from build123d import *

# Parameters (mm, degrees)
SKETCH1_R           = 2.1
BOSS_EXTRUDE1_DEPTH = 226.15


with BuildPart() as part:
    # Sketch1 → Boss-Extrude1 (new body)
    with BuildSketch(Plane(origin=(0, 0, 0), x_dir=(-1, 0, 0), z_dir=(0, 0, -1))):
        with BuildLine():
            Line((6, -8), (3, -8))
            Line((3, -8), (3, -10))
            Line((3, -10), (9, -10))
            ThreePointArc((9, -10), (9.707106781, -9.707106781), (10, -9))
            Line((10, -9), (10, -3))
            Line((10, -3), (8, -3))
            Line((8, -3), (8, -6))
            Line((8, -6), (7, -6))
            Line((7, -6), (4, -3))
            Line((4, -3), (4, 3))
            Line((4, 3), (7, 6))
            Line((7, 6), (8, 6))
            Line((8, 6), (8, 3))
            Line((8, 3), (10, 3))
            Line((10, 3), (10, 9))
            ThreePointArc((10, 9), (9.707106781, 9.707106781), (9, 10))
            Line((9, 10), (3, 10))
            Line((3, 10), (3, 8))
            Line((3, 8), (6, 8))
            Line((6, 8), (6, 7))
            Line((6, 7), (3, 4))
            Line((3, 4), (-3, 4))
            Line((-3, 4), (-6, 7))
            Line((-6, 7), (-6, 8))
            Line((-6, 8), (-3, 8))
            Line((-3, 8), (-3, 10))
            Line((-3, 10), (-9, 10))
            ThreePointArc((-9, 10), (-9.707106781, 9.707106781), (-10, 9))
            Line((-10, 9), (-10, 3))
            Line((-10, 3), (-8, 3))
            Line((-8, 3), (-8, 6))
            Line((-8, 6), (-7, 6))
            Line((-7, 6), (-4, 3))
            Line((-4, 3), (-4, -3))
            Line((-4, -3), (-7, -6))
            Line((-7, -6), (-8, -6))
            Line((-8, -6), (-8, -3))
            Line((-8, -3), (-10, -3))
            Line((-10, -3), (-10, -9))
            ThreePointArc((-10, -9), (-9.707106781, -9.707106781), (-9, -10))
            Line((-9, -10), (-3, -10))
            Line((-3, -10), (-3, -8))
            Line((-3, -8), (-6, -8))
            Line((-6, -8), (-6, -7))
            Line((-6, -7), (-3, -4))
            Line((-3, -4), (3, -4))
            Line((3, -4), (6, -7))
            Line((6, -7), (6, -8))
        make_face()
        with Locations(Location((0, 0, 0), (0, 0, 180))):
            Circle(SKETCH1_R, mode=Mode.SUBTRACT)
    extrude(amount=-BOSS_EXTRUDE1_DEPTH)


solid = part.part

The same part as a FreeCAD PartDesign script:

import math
import FreeCAD as App
import Part
import Sketcher

doc = App.newDocument("Part")
body = doc.addObject("PartDesign::Body", "Body")

sketch1 = body.newObject("Sketcher::SketchObject", "Sketch")
sketch1.AttachmentSupport = (doc.getObject("XY_Plane"), [""])
sketch1.MapMode = "FlatFace"
sketch1.addGeometry([
    Part.LineSegment(App.Vector(-6, -8, 0), App.Vector(-3, -8, 0)),
    Part.LineSegment(App.Vector(-3, -8, 0), App.Vector(-3, -10, 0)),
    Part.LineSegment(App.Vector(-3, -10, 0), App.Vector(-9, -10, 0)),
    Part.ArcOfCircle(Part.Circle(App.Vector(-9, -9, 0), App.Vector(0, 0, 1), 1), math.radians(-180), math.radians(-90)),
    Part.LineSegment(App.Vector(-10, -9, 0), App.Vector(-10, -3, 0)),
    Part.LineSegment(App.Vector(-10, -3, 0), App.Vector(-8, -3, 0)),
    Part.LineSegment(App.Vector(-8, -3, 0), App.Vector(-8, -6, 0)),
    Part.LineSegment(App.Vector(-8, -6, 0), App.Vector(-7, -6, 0)),
    Part.LineSegment(App.Vector(-7, -6, 0), App.Vector(-4, -3, 0)),
    Part.LineSegment(App.Vector(-4, -3, 0), App.Vector(-4, 3, 0)),
    Part.LineSegment(App.Vector(-4, 3, 0), App.Vector(-7, 6, 0)),
    Part.LineSegment(App.Vector(-7, 6, 0), App.Vector(-8, 6, 0)),
    Part.LineSegment(App.Vector(-8, 6, 0), App.Vector(-8, 3, 0)),
    Part.LineSegment(App.Vector(-8, 3, 0), App.Vector(-10, 3, 0)),
    Part.LineSegment(App.Vector(-10, 3, 0), App.Vector(-10, 9, 0)),
    Part.ArcOfCircle(Part.Circle(App.Vector(-9, 9, 0), App.Vector(0, 0, 1), 1), math.radians(90), math.radians(180)),
    Part.LineSegment(App.Vector(-9, 10, 0), App.Vector(-3, 10, 0)),
    Part.LineSegment(App.Vector(-3, 10, 0), App.Vector(-3, 8, 0)),
    Part.LineSegment(App.Vector(-3, 8, 0), App.Vector(-6, 8, 0)),
    Part.LineSegment(App.Vector(-6, 8, 0), App.Vector(-6, 7, 0)),
    Part.LineSegment(App.Vector(-6, 7, 0), App.Vector(-3, 4, 0)),
    Part.LineSegment(App.Vector(-3, 4, 0), App.Vector(3, 4, 0)),
    Part.LineSegment(App.Vector(3, 4, 0), App.Vector(6, 7, 0)),
    Part.LineSegment(App.Vector(6, 7, 0), App.Vector(6, 8, 0)),
    Part.LineSegment(App.Vector(6, 8, 0), App.Vector(3, 8, 0)),
    Part.LineSegment(App.Vector(3, 8, 0), App.Vector(3, 10, 0)),
    Part.LineSegment(App.Vector(3, 10, 0), App.Vector(9, 10, 0)),
    Part.ArcOfCircle(Part.Circle(App.Vector(9, 9, 0), App.Vector(0, 0, 1), 1), math.radians(0), math.radians(90)),
    Part.LineSegment(App.Vector(10, 9, 0), App.Vector(10, 3, 0)),
    Part.LineSegment(App.Vector(10, 3, 0), App.Vector(8, 3, 0)),
    Part.LineSegment(App.Vector(8, 3, 0), App.Vector(8, 6, 0)),
    Part.LineSegment(App.Vector(8, 6, 0), App.Vector(7, 6, 0)),
    Part.LineSegment(App.Vector(7, 6, 0), App.Vector(4, 3, 0)),
    Part.LineSegment(App.Vector(4, 3, 0), App.Vector(4, -3, 0)),
    Part.LineSegment(App.Vector(4, -3, 0), App.Vector(7, -6, 0)),
    Part.LineSegment(App.Vector(7, -6, 0), App.Vector(8, -6, 0)),
    Part.LineSegment(App.Vector(8, -6, 0), App.Vector(8, -3, 0)),
    Part.LineSegment(App.Vector(8, -3, 0), App.Vector(10, -3, 0)),
    Part.LineSegment(App.Vector(10, -3, 0), App.Vector(10, -9, 0)),
    Part.ArcOfCircle(Part.Circle(App.Vector(9, -9, 0), App.Vector(0, 0, 1), 1), math.radians(-90), math.radians(0)),
    Part.LineSegment(App.Vector(9, -10, 0), App.Vector(3, -10, 0)),
    Part.LineSegment(App.Vector(3, -10, 0), App.Vector(3, -8, 0)),
    Part.LineSegment(App.Vector(3, -8, 0), App.Vector(6, -8, 0)),
    Part.LineSegment(App.Vector(6, -8, 0), App.Vector(6, -7, 0)),
    Part.LineSegment(App.Vector(6, -7, 0), App.Vector(3, -4, 0)),
    Part.LineSegment(App.Vector(3, -4, 0), App.Vector(-3, -4, 0)),
    Part.LineSegment(App.Vector(-3, -4, 0), App.Vector(-6, -7, 0)),
    Part.LineSegment(App.Vector(-6, -7, 0), App.Vector(-6, -8, 0)),
    Part.Circle(App.Vector(0, 0, 0), App.Vector(0, 0, 1), 2.1),
], False)
sketch1.addConstraint([
    Sketcher.Constraint("Coincident", 0, 2, 1, 1),
    Sketcher.Constraint("Coincident", 1, 2, 2, 1),
    Sketcher.Constraint("Tangent", 2, 2, 3, 2),
    Sketcher.Constraint("Tangent", 3, 1, 4, 1),
    Sketcher.Constraint("Coincident", 4, 2, 5, 1),
    Sketcher.Constraint("Coincident", 5, 2, 6, 1),
    Sketcher.Constraint("Coincident", 6, 2, 7, 1),
    Sketcher.Constraint("Coincident", 7, 2, 8, 1),
    Sketcher.Constraint("Coincident", 8, 2, 9, 1),
    Sketcher.Constraint("Coincident", 9, 2, 10, 1),
    Sketcher.Constraint("Coincident", 10, 2, 11, 1),
    Sketcher.Constraint("Coincident", 11, 2, 12, 1),
    Sketcher.Constraint("Coincident", 12, 2, 13, 1),
    Sketcher.Constraint("Coincident", 13, 2, 14, 1),
    Sketcher.Constraint("Tangent", 14, 2, 15, 2),
    Sketcher.Constraint("Tangent", 15, 1, 16, 1),
    Sketcher.Constraint("Coincident", 16, 2, 17, 1),
    Sketcher.Constraint("Coincident", 17, 2, 18, 1),
    Sketcher.Constraint("Coincident", 18, 2, 19, 1),
    Sketcher.Constraint("Coincident", 19, 2, 20, 1),
    Sketcher.Constraint("Coincident", 20, 2, 21, 1),
    Sketcher.Constraint("Coincident", 21, 2, 22, 1),
    Sketcher.Constraint("Coincident", 22, 2, 23, 1),
    Sketcher.Constraint("Coincident", 23, 2, 24, 1),
    Sketcher.Constraint("Coincident", 24, 2, 25, 1),
    Sketcher.Constraint("Coincident", 25, 2, 26, 1),
    Sketcher.Constraint("Tangent", 26, 2, 27, 2),
    Sketcher.Constraint("Tangent", 27, 1, 28, 1),
    Sketcher.Constraint("Coincident", 28, 2, 29, 1),
    Sketcher.Constraint("Coincident", 29, 2, 30, 1),
    Sketcher.Constraint("Coincident", 30, 2, 31, 1),
    Sketcher.Constraint("Coincident", 31, 2, 32, 1),
    Sketcher.Constraint("Coincident", 32, 2, 33, 1),
    Sketcher.Constraint("Coincident", 33, 2, 34, 1),
    Sketcher.Constraint("Coincident", 34, 2, 35, 1),
    Sketcher.Constraint("Coincident", 35, 2, 36, 1),
    Sketcher.Constraint("Coincident", 36, 2, 37, 1),
    Sketcher.Constraint("Coincident", 37, 2, 38, 1),
    Sketcher.Constraint("Tangent", 38, 2, 39, 2),
    Sketcher.Constraint("Tangent", 39, 1, 40, 1),
    Sketcher.Constraint("Coincident", 40, 2, 41, 1),
    Sketcher.Constraint("Coincident", 41, 2, 42, 1),
    Sketcher.Constraint("Coincident", 42, 2, 43, 1),
    Sketcher.Constraint("Coincident", 43, 2, 44, 1),
    Sketcher.Constraint("Coincident", 44, 2, 45, 1),
    Sketcher.Constraint("Coincident", 45, 2, 46, 1),
    Sketcher.Constraint("Coincident", 46, 2, 47, 1),
    Sketcher.Constraint("Coincident", 47, 2, 0, 1),
    Sketcher.Constraint("Horizontal", 0),
    Sketcher.Constraint("Vertical", 1),
    Sketcher.Constraint("Horizontal", 2),
    Sketcher.Constraint("Vertical", 4),
    Sketcher.Constraint("Horizontal", 5),
    Sketcher.Constraint("Vertical", 6),
    Sketcher.Constraint("Horizontal", 7),
    Sketcher.Constraint("Vertical", 9),
    Sketcher.Constraint("Horizontal", 11),
    Sketcher.Constraint("Vertical", 12),
    Sketcher.Constraint("Horizontal", 13),
    Sketcher.Constraint("Vertical", 14),
    Sketcher.Constraint("Horizontal", 16),
    Sketcher.Constraint("Vertical", 17),
    Sketcher.Constraint("Horizontal", 18),
    Sketcher.Constraint("Vertical", 19),
    Sketcher.Constraint("Horizontal", 21),
    Sketcher.Constraint("Vertical", 23),
    Sketcher.Constraint("Horizontal", 24),
    Sketcher.Constraint("Vertical", 25),
    Sketcher.Constraint("Horizontal", 26),
    Sketcher.Constraint("Vertical", 28),
    Sketcher.Constraint("Horizontal", 29),
    Sketcher.Constraint("Vertical", 30),
    Sketcher.Constraint("Horizontal", 31),
    Sketcher.Constraint("Vertical", 33),
    Sketcher.Constraint("Horizontal", 35),
    Sketcher.Constraint("Vertical", 36),
    Sketcher.Constraint("Horizontal", 37),
    Sketcher.Constraint("Vertical", 38),
    Sketcher.Constraint("Horizontal", 40),
    Sketcher.Constraint("Vertical", 41),
    Sketcher.Constraint("Horizontal", 42),
    Sketcher.Constraint("Vertical", 43),
    Sketcher.Constraint("Horizontal", 45),
    Sketcher.Constraint("Vertical", 47),
    Sketcher.Constraint("Coincident", 48, 3, -1, 1),
    Sketcher.Constraint("Equal", 3, 15),
    Sketcher.Constraint("Equal", 15, 27),
    Sketcher.Constraint("Equal", 27, 39),
    Sketcher.Constraint("Symmetric", 3, 3, 27, 3, -1, 1),
    Sketcher.Constraint("Symmetric", 15, 3, 39, 3, -1, 1),
    Sketcher.Constraint("Symmetric", 0, 2, 24, 2, -1, 1),
    Sketcher.Constraint("Symmetric", 5, 2, 29, 2, -1, 1),
    Sketcher.Constraint("Symmetric", 7, 2, 31, 2, -1, 1),
    Sketcher.Constraint("Symmetric", 8, 2, 32, 2, -1, 1),
    Sketcher.Constraint("Symmetric", 10, 2, 34, 2, -1, 1),
    Sketcher.Constraint("Symmetric", 12, 2, 36, 2, -1, 1),
    Sketcher.Constraint("Symmetric", 17, 2, 41, 2, -1, 1),
    Sketcher.Constraint("Symmetric", 19, 2, 43, 2, -1, 1),
    Sketcher.Constraint("Symmetric", 20, 2, 44, 2, -1, 1),
    Sketcher.Constraint("Symmetric", 22, 2, 46, 2, -1, 1),
    Sketcher.Constraint("Symmetric", 15, 3, 27, 3, -2),
    Sketcher.Constraint("Symmetric", 19, 2, 22, 2, -2),
    Sketcher.Constraint("Symmetric", 17, 2, 24, 2, -2),
    Sketcher.Constraint("Symmetric", 12, 2, 29, 2, -2),
    Sketcher.Constraint("Symmetric", 10, 2, 31, 2, -2),
    Sketcher.Constraint("Perpendicular", 8, 10),
    Sketcher.Constraint("Parallel", 10, 20),
    Sketcher.Constraint("Perpendicular", 20, 22),
    Sketcher.Constraint("Perpendicular", 32, 34),
    Sketcher.Constraint("Perpendicular", 44, 46),
    Sketcher.Constraint("Horizontal", 5, 2, 8, 2),
    Sketcher.Constraint("Horizontal", 9, 2, 12, 2),
    Sketcher.Constraint("Vertical", 17, 2, 20, 2),
    Sketcher.Constraint("Equal", 16, 21),
    Sketcher.Constraint("Equal", 37, 1),
    Sketcher.Constraint("Equal", 45, 4),
    Sketcher.Constraint("Equal", 42, 6),
    Sketcher.Constraint("Equal", 4, 9),
    Sketcher.Constraint("Equal", 35, 19),
    Sketcher.Constraint("Radius", 3, 1.0),
    Sketcher.Constraint("Diameter", 48, 4.2),
    Sketcher.Constraint("DistanceX", 0, 1, 0, 2, 3.0),
    Sketcher.Constraint("DistanceX", 2, 2, 2, 1, 6.0),
    Sketcher.Constraint("DistanceX", 5, 1, 5, 2, 2.0),
    Sketcher.Constraint("DistanceX", 7, 1, 7, 2, 1.0),
])
pad1 = body.newObject("PartDesign::Pad", "Pad")
pad1.Profile = sketch1
pad1.Length = 226.15

doc.recompute()
